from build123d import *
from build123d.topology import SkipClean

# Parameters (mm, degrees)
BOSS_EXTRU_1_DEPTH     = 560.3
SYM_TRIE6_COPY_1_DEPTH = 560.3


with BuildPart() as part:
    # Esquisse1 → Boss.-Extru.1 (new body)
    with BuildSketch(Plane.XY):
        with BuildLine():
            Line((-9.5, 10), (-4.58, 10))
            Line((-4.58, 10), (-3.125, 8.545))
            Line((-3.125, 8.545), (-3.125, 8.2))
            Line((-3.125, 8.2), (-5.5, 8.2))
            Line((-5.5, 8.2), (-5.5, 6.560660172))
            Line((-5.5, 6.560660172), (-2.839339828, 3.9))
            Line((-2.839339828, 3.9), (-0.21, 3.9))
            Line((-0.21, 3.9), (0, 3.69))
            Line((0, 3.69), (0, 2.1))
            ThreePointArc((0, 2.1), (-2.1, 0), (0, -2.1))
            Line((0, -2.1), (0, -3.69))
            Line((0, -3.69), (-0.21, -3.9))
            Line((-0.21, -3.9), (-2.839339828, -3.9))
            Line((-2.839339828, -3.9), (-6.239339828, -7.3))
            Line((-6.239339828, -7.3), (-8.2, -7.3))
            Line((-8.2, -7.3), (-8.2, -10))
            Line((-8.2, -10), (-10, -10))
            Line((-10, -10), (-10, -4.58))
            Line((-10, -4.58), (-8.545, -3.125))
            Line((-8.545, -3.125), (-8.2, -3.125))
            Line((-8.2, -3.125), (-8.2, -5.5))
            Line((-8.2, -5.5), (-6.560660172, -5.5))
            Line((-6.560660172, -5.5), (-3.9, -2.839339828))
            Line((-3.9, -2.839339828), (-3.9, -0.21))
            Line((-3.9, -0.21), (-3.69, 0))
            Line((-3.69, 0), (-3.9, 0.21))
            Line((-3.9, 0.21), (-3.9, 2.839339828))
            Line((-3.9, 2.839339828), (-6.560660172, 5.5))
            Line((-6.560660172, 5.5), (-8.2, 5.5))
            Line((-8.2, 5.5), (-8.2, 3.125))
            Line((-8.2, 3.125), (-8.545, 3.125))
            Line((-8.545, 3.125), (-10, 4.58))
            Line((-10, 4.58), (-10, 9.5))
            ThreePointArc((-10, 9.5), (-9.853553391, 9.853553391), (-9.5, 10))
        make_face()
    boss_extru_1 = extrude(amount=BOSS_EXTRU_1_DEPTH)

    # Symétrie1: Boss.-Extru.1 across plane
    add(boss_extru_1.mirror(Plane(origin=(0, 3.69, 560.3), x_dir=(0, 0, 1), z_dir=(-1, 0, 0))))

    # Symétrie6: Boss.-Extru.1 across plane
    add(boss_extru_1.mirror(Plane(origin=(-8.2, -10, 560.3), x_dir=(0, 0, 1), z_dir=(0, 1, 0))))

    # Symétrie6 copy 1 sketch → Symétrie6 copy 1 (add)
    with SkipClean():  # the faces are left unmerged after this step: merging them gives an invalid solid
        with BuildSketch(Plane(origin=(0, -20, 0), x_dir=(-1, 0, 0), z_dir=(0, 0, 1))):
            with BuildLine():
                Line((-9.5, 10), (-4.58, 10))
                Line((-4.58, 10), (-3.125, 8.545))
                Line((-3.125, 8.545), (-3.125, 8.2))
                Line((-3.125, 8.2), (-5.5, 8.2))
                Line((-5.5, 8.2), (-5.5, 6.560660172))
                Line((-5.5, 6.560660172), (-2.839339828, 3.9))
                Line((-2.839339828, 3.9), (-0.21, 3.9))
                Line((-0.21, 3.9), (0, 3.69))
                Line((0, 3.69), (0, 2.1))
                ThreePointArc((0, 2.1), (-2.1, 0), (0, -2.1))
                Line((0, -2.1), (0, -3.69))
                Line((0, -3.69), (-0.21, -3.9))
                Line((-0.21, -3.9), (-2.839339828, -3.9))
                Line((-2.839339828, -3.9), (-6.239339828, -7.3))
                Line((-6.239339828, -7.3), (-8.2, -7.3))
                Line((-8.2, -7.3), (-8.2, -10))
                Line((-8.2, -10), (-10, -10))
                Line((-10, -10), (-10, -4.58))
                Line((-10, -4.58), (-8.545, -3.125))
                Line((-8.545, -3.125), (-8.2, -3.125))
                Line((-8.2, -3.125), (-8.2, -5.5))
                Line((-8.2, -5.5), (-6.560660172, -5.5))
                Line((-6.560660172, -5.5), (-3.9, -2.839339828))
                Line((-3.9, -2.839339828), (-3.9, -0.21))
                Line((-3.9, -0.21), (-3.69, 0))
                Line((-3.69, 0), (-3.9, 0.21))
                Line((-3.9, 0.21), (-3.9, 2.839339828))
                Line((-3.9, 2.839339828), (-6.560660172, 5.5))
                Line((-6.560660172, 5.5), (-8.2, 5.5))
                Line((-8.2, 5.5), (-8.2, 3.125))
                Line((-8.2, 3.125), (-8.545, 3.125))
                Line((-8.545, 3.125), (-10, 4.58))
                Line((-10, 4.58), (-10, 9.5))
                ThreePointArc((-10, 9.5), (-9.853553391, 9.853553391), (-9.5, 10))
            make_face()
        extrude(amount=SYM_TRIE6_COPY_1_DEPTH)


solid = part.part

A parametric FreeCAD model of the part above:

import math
import FreeCAD as App
import Part
import Sketcher

V = App.Vector

doc = App.newDocument("Part")
body = doc.addObject("PartDesign::Body", "Body")

# Sketch on XY plane
sketch1 = body.newObject("Sketcher::SketchObject", "Sketch")
sketch1.AttachmentSupport = (doc.getObject("XY_Plane"), [""])
sketch1.MapMode = "FlatFace"
sketch1.addGeometry(Part.LineSegment(V(-4.58, 10, 0), V(-9.5, 10, 0)), False)
sketch1.addGeometry(Part.ArcOfCircle(Part.Circle(V(-9.5, 9.5, 0), V(0, 0, 1), 0.5), math.radians(90), math.radians(180)), False)
sketch1.addGeometry(Part.LineSegment(V(-10, 9.5, 0), V(-10, 4.58, 0)), False)
sketch1.addGeometry(Part.LineSegment(V(-10, 4.58, 0), V(-8.54, 3.12, 0)), False)
sketch1.addGeometry(Part.LineSegment(V(-8.54, 3.12, 0), V(-8.2, 3.12, 0)), False)
sketch1.addGeometry(Part.LineSegment(V(-8.2, 3.12, 0), V(-8.2, 5.5, 0)), False)
sketch1.addGeometry(Part.LineSegment(V(-8.2, 5.5, 0), V(-6.56, 5.5, 0)), False)
sketch1.addGeometry(Part.LineSegment(V(-6.56, 5.5, 0), V(-3.9, 2.84, 0)), False)
sketch1.addGeometry(Part.LineSegment(V(-3.9, 2.84, 0), V(-3.9, 0.21, 0)), False)
sketch1.addGeometry(Part.LineSegment(V(-3.9, 0.21, 0), V(-3.69, 0, 0)), False)
sketch1.addGeometry(Part.LineSegment(V(-3.69, 0, 0), V(-3.9, -0.21, 0)), False)
sketch1.addGeometry(Part.LineSegment(V(-3.9, -0.21, 0), V(-3.9, -2.84, 0)), False)
sketch1.addGeometry(Part.LineSegment(V(-3.9, -2.84, 0), V(-6.56, -5.5, 0)), False)
sketch1.addGeometry(Part.LineSegment(V(-6.56, -5.5, 0), V(-8.2, -5.5, 0)), False)
sketch1.addGeometry(Part.LineSegment(V(-8.2, -5.5, 0), V(-8.2, -3.12, 0)), False)
sketch1.addGeometry(Part.LineSegment(V(-8.2, -3.12, 0), V(-8.54, -3.12, 0)), False)
sketch1.addGeometry(Part.LineSegment(V(-8.54, -3.12, 0), V(-10, -4.58, 0)), False)
sketch1.addGeometry(Part.LineSegment(V(-10, -4.58, 0), V(-10, -10, 0)), False)
sketch1.addGeometry(Part.LineSegment(V(-10, -10, 0), V(-8.2, -10, 0)), False)
sketch1.addGeometry(Part.LineSegment(V(-8.2, -10, 0), V(-8.2, -7.3, 0)), False)
sketch1.addGeometry(Part.LineSegment(V(-8.2, -7.3, 0), V(-6.24, -7.3, 0)), False)
sketch1.addGeometry(Part.LineSegment(V(-6.24, -7.3, 0), V(-2.84, -3.9, 0)), False)
sketch1.addGeometry(Part.LineSegment(V(-2.84, -3.9, 0), V(-0.21, -3.9, 0)), False)
sketch1.addGeometry(Part.LineSegment(V(-0.21, -3.9, 0), V(0, -3.69, 0)), False)
sketch1.addGeometry(Part.LineSegment(V(0, -3.69, 0), V(0, -2.1, 0)), False)
sketch1.addGeometry(Part.ArcOfCircle(Part.Circle(V(0, 0, 0), V(0, 0, 1), 2.1), math.radians(90), math.radians(270)), False)
sketch1.addGeometry(Part.LineSegment(V(0, 2.1, 0), V(0, 3.69, 0)), False)
sketch1.addGeometry(Part.LineSegment(V(0, 3.69, 0), V(-0.21, 3.9, 0)), False)
sketch1.addGeometry(Part.LineSegment(V(-0.21, 3.9, 0), V(-2.84, 3.9, 0)), False)
sketch1.addGeometry(Part.LineSegment(V(-2.84, 3.9, 0), V(-5.5, 6.56, 0)), False)
sketch1.addGeometry(Part.LineSegment(V(-5.5, 6.56, 0), V(-5.5, 8.2, 0)), False)
sketch1.addGeometry(Part.LineSegment(V(-5.5, 8.2, 0), V(-3.12, 8.2, 0)), False)
sketch1.addGeometry(Part.LineSegment(V(-3.12, 8.2, 0), V(-3.12, 8.54, 0)), False)
sketch1.addGeometry(Part.LineSegment(V(-3.12, 8.54, 0), V(-4.58, 10, 0)), False)
sketch1.addConstraint(Sketcher.Constraint("Tangent", 0, 2, 1, 1))
sketch1.addConstraint(Sketcher.Constraint("Tangent", 1, 2, 2, 1))
sketch1.addConstraint(Sketcher.Constraint("Coincident", 2, 2, 3, 1))
sketch1.addConstraint(Sketcher.Constraint("Coincident", 3, 2, 4, 1))
sketch1.addConstraint(Sketcher.Constraint("Coincident", 4, 2, 5, 1))
sketch1.addConstraint(Sketcher.Constraint("Coincident", 5, 2, 6, 1))
sketch1.addConstraint(Sketcher.Constraint("Coincident", 6, 2, 7, 1))
sketch1.addConstraint(Sketcher.Constraint("Coincident", 7, 2, 8, 1))
sketch1.addConstraint(Sketcher.Constraint("Coincident", 8, 2, 9, 1))
sketch1.addConstraint(Sketcher.Constraint("Coincident", 9, 2, 10, 1))
sketch1.addConstraint(Sketcher.Constraint("Coincident", 10, 2, 11, 1))
sketch1.addConstraint(Sketcher.Constraint("Coincident", 11, 2, 12, 1))
sketch1.addConstraint(Sketcher.Constraint("Coincident", 12, 2, 13, 1))
sketch1.addConstraint(Sketcher.Constraint("Coincident", 13, 2, 14, 1))
sketch1.addConstraint(Sketcher.Constraint("Coincident", 14, 2, 15, 1))
sketch1.addConstraint(Sketcher.Constraint("Coincident", 15, 2, 16, 1))
sketch1.addConstraint(Sketcher.Constraint("Coincident", 16, 2, 17, 1))
sketch1.addConstraint(Sketcher.Constraint("Coincident", 17, 2, 18, 1))
sketch1.addConstraint(Sketcher.Constraint("Coincident", 18, 2, 19, 1))
sketch1.addConstraint(Sketcher.Constraint("Coincident", 19, 2, 20, 1))
sketch1.addConstraint(Sketcher.Constraint("Coincident", 20, 2, 21, 1))
sketch1.addConstraint(Sketcher.Constraint("Coincident", 21, 2, 22, 1))
sketch1.addConstraint(Sketcher.Constraint("Coincident", 22, 2, 23, 1))
sketch1.addConstraint(Sketcher.Constraint("Coincident", 23, 2, 24, 1))
sketch1.addConstraint(Sketcher.Constraint("Coincident", 24, 2, 25, 2))
sketch1.addConstraint(Sketcher.Constraint("Coincident", 25, 1, 26, 1))
sketch1.addConstraint(Sketcher.Constraint("Coincident", 26, 2, 27, 1))
sketch1.addConstraint(Sketcher.Constraint("Coincident", 27, 2, 28, 1))
sketch1.addConstraint(Sketcher.Constraint("Coincident", 28, 2, 29, 1))
sketch1.addConstraint(Sketcher.Constraint("Coincident", 29, 2, 30, 1))
sketch1.addConstraint(Sketcher.Constraint("Coincident", 30, 2, 31, 1))
sketch1.addConstraint(Sketcher.Constraint("Coincident", 31, 2, 32, 1))
sketch1.addConstraint(Sketcher.Constraint("Coincident", 32, 2, 33, 1))
sketch1.addConstraint(Sketcher.Constraint("Coincident", 33, 2, 0, 1))
sketch1.addConstraint(Sketcher.Constraint("Horizontal", 0))
sketch1.addConstraint(Sketcher.Constraint("Vertical", 2))
sketch1.addConstraint(Sketcher.Constraint("Horizontal", 4))
sketch1.addConstraint(Sketcher.Constraint("Vertical", 5))
sketch1.addConstraint(Sketcher.Constraint("Horizontal", 6))
sketch1.addConstraint(Sketcher.Constraint("Vertical", 8))
sketch1.addConstraint(Sketcher.Constraint("Vertical", 11))
sketch1.addConstraint(Sketcher.Constraint("Horizontal", 13))
sketch1.addConstraint(Sketcher.Constraint("Vertical", 14))
sketch1.addConstraint(Sketcher.Constraint("Horizontal", 15))
sketch1.addConstraint(Sketcher.Constraint("Vertical", 17))
sketch1.addConstraint(Sketcher.Constraint("Horizontal", 18))
sketch1.addConstraint(Sketcher.Constraint("Vertical", 19))
sketch1.addConstraint(Sketcher.Constraint("Horizontal", 20))
sketch1.addConstraint(Sketcher.Constraint("Horizontal", 22))
sketch1.addConstraint(Sketcher.Constraint("Vertical", 24))
sketch1.addConstraint(Sketcher.Constraint("Vertical", 26))
sketch1.addConstraint(Sketcher.Constraint("Horizontal", 28))
sketch1.addConstraint(Sketcher.Constraint("Vertical", 30))
sketch1.addConstraint(Sketcher.Constraint("Horizontal", 31))
sketch1.addConstraint(Sketcher.Constraint("Vertical", 32))
sketch1.addConstraint(Sketcher.Constraint("Coincident", 25, 3, -1, 1))
sketch1.addConstraint(Sketcher.Constraint("Symmetric", 23, 2, 26, 2, -1, 1))
sketch1.addConstraint(Sketcher.Constraint("Symmetric", 8, 2, 10, 2, -1))
sketch1.addConstraint(Sketcher.Constraint("Symmetric", 6, 2, 12, 2, -1))
sketch1.addConstraint(Sketcher.Constraint("Symmetric", 4, 2, 14, 2, -1))
sketch1.addConstraint(Sketcher.Constraint("Symmetric", 2, 2, 16, 2, -1))
sketch1.addConstraint(Sketcher.Constraint("Symmetric", 22, 2, 27, 2, -1))
sketch1.addConstraint(Sketcher.Constraint("PointOnObject", 9, 2, -1))
sketch1.addConstraint(Sketcher.Constraint("PointOnObject", 23, 2, -2))
sketch1.addConstraint(Sketcher.Constraint("Parallel", 3, 7))
sketch1.addConstraint(Sketcher.Constraint("Parallel", 7, 9))
sketch1.addConstraint(Sketcher.Constraint("Perpendicular", 9, 10))
sketch1.addConstraint(Sketcher.Constraint("Parallel", 10, 12))
sketch1.addConstraint(Sketcher.Constraint("Parallel", 12, 16))
sketch1.addConstraint(Sketcher.Constraint("Parallel", 16, 21))
sketch1.addConstraint(Sketcher.Constraint("Parallel", 21, 23))
sketch1.addConstraint(Sketcher.Constraint("Parallel", 27, 29))
sketch1.addConstraint(Sketcher.Constraint("Parallel", 29, 33))
sketch1.addConstraint(Sketcher.Constraint("Vertical", 14, 2, 18, 2))
sketch1.addConstraint(Sketcher.Constraint("Vertical", 21, 2, 28, 2))
sketch1.addConstraint(Sketcher.Constraint("Equal", 0, 2))
sketch1.addConstraint(Sketcher.Constraint("Equal", 31, 5))
sketch1.addConstraint(Sketcher.Constraint("Equal", 28, 8))
sketch1.addConstraint(Sketcher.Constraint("Equal", 13, 30))
sketch1.addConstraint(Sketcher.Constraint("Equal", 15, 32))
sketch1.addConstraint(Sketcher.Constraint("Equal", 10, 23))
sketch1.addConstraint(Sketcher.Constraint("Equal", 12, 29))
sketch1.addConstraint(Sketcher.Constraint("Equal", 16, 33))
sketch1.addConstraint(Sketcher.Constraint("Radius", 1, 0.5))
sketch1.addConstraint(Sketcher.Constraint("Radius", 25, 2.1))
sketch1.addConstraint(Sketcher.Constraint("DistanceX", 18, 1, 18, 2, 1.8))
sketch1.addConstraint(Sketcher.Constraint("DistanceY", 19, 1, 19, 2, 2.7))
sketch1.addConstraint(Sketcher.Constraint("DistanceY", -1, 1, 0, 2, 10.0))
sketch1.addConstraint(Sketcher.Constraint("DistanceY", 17, 2, -1, 1, 10.0))
sketch1.addConstraint(Sketcher.Constraint("DistanceY", 5, 2, 1, 3, 4.0))
sketch1.addConstraint(Sketcher.Constraint("DistanceX", 0, 2, 0, 1, 4.92))
sketch1.addConstraint(Sketcher.Constraint("DistanceY", 24, 1, 24, 2, 1.59))
sketch1.addConstraint(Sketcher.Constraint("DistanceX", 7, 2, -1, 1, 3.9))
sketch1.addConstraint(Sketcher.Constraint("DistanceX", 4, 1, 4, 2, 0.345))
sketch1.addConstraint(Sketcher.Constraint("DistanceX", 6, 1, 6, 2, 1.63934))
pad1 = body.newObject("PartDesign::Pad", "Pad")
pad1.Profile = sketch1
pad1.Length = 560.3
doc.recompute()

mirrored = body.newObject("PartDesign::Mirrored", "Mirrored")
mirrored.Originals = [pad1]
mirrored.MirrorPlane = (doc.getObject("YZ_Plane"), [""])
body.Tip = mirrored
doc.recompute()

datumplane = body.newObject("PartDesign::Plane", "DatumPlane")
datumplane.AttachmentSupport = (doc.getObject("XZ_Plane"), [""])
datumplane.MapMode = "FlatFace"
datumplane.AttachmentOffset = App.Placement(V(0, 0, 10), App.Rotation())
mirrored2 = body.newObject("PartDesign::Mirrored", "Mirrored001")
mirrored2.Originals = [pad1]
mirrored2.MirrorPlane = (datumplane, [""])
body.Tip = mirrored2

# Sketch on XY plane
sketch2 = body.newObject("Sketcher::SketchObject", "Sketch001")
sketch2.AttachmentSupport = (doc.getObject("XY_Plane"), [""])
sketch2.MapMode = "FlatFace"
sketch2.addGeometry(Part.LineSegment(V(4.58, -30, 0), V(9.5, -30, 0)), False)
sketch2.addGeometry(Part.ArcOfCircle(Part.Circle(V(9.5, -29.5, 0), V(0, 0, 1), 0.5), math.radians(-90), math.radians(0)), False)
sketch2.addGeometry(Part.LineSegment(V(10, -29.5, 0), V(10, -24.58, 0)), False)
sketch2.addGeometry(Part.LineSegment(V(10, -24.58, 0), V(8.54, -23.12, 0)), False)
sketch2.addGeometry(Part.LineSegment(V(8.54, -23.12, 0), V(8.2, -23.12, 0)), False)
sketch2.addGeometry(Part.LineSegment(V(8.2, -23.12, 0), V(8.2, -25.5, 0)), False)
sketch2.addGeometry(Part.LineSegment(V(8.2, -25.5, 0), V(6.56, -25.5, 0)), False)
sketch2.addGeometry(Part.LineSegment(V(6.56, -25.5, 0), V(3.9, -22.84, 0)), False)
sketch2.addGeometry(Part.LineSegment(V(3.9, -22.84, 0), V(3.9, -20.21, 0)), False)
sketch2.addGeometry(Part.LineSegment(V(3.9, -20.21, 0), V(3.69, -20, 0)), False)
sketch2.addGeometry(Part.LineSegment(V(3.69, -20, 0), V(3.9, -19.79, 0)), False)
sketch2.addGeometry(Part.LineSegment(V(3.9, -19.79, 0), V(3.9, -17.16, 0)), False)
sketch2.addGeometry(Part.LineSegment(V(3.9, -17.16, 0), V(6.56, -14.5, 0)), False)
sketch2.addGeometry(Part.LineSegment(V(6.56, -14.5, 0), V(8.2, -14.5, 0)), False)
sketch2.addGeometry(Part.LineSegment(V(8.2, -14.5, 0), V(8.2, -16.88, 0)), False)
sketch2.addGeometry(Part.LineSegment(V(8.2, -16.88, 0), V(8.54, -16.88, 0)), False)
sketch2.addGeometry(Part.LineSegment(V(8.54, -16.88, 0), V(10, -15.42, 0)), False)
sketch2.addGeometry(Part.LineSegment(V(10, -15.42, 0), V(10, -10, 0)), False)
sketch2.addGeometry(Part.LineSegment(V(10, -10, 0), V(8.2, -10, 0)), False)
sketch2.addGeometry(Part.LineSegment(V(8.2, -10, 0), V(8.2, -12.7, 0)), False)
sketch2.addGeometry(Part.LineSegment(V(8.2, -12.7, 0), V(6.24, -12.7, 0)), False)
sketch2.addGeometry(Part.LineSegment(V(6.24, -12.7, 0), V(2.84, -16.1, 0)), False)
sketch2.addGeometry(Part.LineSegment(V(2.84, -16.1, 0), V(0.21, -16.1, 0)), False)
sketch2.addGeometry(Part.LineSegment(V(0.21, -16.1, 0), V(0, -16.31, 0)), False)
sketch2.addGeometry(Part.LineSegment(V(0, -16.31, 0), V(0, -17.9, 0)), False)
sketch2.addGeometry(Part.ArcOfCircle(Part.Circle(V(0, -20, 0), V(0, 0, 1), 2.1), math.radians(-90), math.radians(90)), False)
sketch2.addGeometry(Part.LineSegment(V(0, -22.1, 0), V(0, -23.69, 0)), False)
sketch2.addGeometry(Part.LineSegment(V(0, -23.69, 0), V(0.21, -23.9, 0)), False)
sketch2.addGeometry(Part.LineSegment(V(0.21, -23.9, 0), V(2.84, -23.9, 0)), False)
sketch2.addGeometry(Part.LineSegment(V(2.84, -23.9, 0), V(5.5, -26.56, 0)), False)
sketch2.addGeometry(Part.LineSegment(V(5.5, -26.56, 0), V(5.5, -28.2, 0)), False)
sketch2.addGeometry(Part.LineSegment(V(5.5, -28.2, 0), V(3.12, -28.2, 0)), False)
sketch2.addGeometry(Part.LineSegment(V(3.12, -28.2, 0), V(3.12, -28.55, 0)), False)
sketch2.addGeometry(Part.LineSegment(V(3.12, -28.55, 0), V(4.58, -30, 0)), False)
sketch2.addConstraint(Sketcher.Constraint("Tangent", 0, 2, 1, 1))
sketch2.addConstraint(Sketcher.Constraint("Tangent", 1, 2, 2, 1))
sketch2.addConstraint(Sketcher.Constraint("Coincident", 2, 2, 3, 1))
sketch2.addConstraint(Sketcher.Constraint("Coincident", 3, 2, 4, 1))
sketch2.addConstraint(Sketcher.Constraint("Coincident", 4, 2, 5, 1))
sketch2.addConstraint(Sketcher.Constraint("Coincident", 5, 2, 6, 1))
sketch2.addConstraint(Sketcher.Constraint("Coincident", 6, 2, 7, 1))
sketch2.addConstraint(Sketcher.Constraint("Coincident", 7, 2, 8, 1))
sketch2.addConstraint(Sketcher.Constraint("Coincident", 8, 2, 9, 1))
sketch2.addConstraint(Sketcher.Constraint("Coincident", 9, 2, 10, 1))
sketch2.addConstraint(Sketcher.Constraint("Coincident", 10, 2, 11, 1))
sketch2.addConstraint(Sketcher.Constraint("Coincident", 11, 2, 12, 1))
sketch2.addConstraint(Sketcher.Constraint("Coincident", 12, 2, 13, 1))
sketch2.addConstraint(Sketcher.Constraint("Coincident", 13, 2, 14, 1))
sketch2.addConstraint(Sketcher.Constraint("Coincident", 14, 2, 15, 1))
sketch2.addConstraint(Sketcher.Constraint("Coincident", 15, 2, 16, 1))
sketch2.addConstraint(Sketcher.Constraint("Coincident", 16, 2, 17, 1))
sketch2.addConstraint(Sketcher.Constraint("Coincident", 17, 2, 18, 1))
sketch2.addConstraint(Sketcher.Constraint("Coincident", 18, 2, 19, 1))
sketch2.addConstraint(Sketcher.Constraint("Coincident", 19, 2, 20, 1))
sketch2.addConstraint(Sketcher.Constraint("Coincident", 20, 2, 21, 1))
sketch2.addConstraint(Sketcher.Constraint("Coincident", 21, 2, 22, 1))
sketch2.addConstraint(Sketcher.Constraint("Coincident", 22, 2, 23, 1))
sketch2.addConstraint(Sketcher.Constraint("Coincident", 23, 2, 24, 1))
sketch2.addConstraint(Sketcher.Constraint("Coincident", 24, 2, 25, 2))
sketch2.addConstraint(Sketcher.Constraint("Coincident", 25, 1, 26, 1))
sketch2.addConstraint(Sketcher.Constraint("Coincident", 26, 2, 27, 1))
sketch2.addConstraint(Sketcher.Constraint("Coincident", 27, 2, 28, 1))
sketch2.addConstraint(Sketcher.Constraint("Coincident", 28, 2, 29, 1))
sketch2.addConstraint(Sketcher.Constraint("Coincident", 29, 2, 30, 1))
sketch2.addConstraint(Sketcher.Constraint("Coincident", 30, 2, 31, 1))
sketch2.addConstraint(Sketcher.Constraint("Coincident", 31, 2, 32, 1))
sketch2.addConstraint(Sketcher.Constraint("Coincident", 32, 2, 33, 1))
sketch2.addConstraint(Sketcher.Constraint("Coincident", 33, 2, 0, 1))
sketch2.addConstraint(Sketcher.Constraint("Horizontal", 0))
sketch2.addConstraint(Sketcher.Constraint("Vertical", 2))
sketch2.addConstraint(Sketcher.Constraint("Horizontal", 4))
sketch2.addConstraint(Sketcher.Constraint("Vertical", 5))
sketch2.addConstraint(Sketcher.Constraint("Horizontal", 6))
sketch2.addConstraint(Sketcher.Constraint("Vertical", 8))
sketch2.addConstraint(Sketcher.Constraint("Vertical", 11))
sketch2.addConstraint(Sketcher.Constraint("Horizontal", 13))
sketch2.addConstraint(Sketcher.Constraint("Vertical", 14))
sketch2.addConstraint(Sketcher.Constraint("Horizontal", 15))
sketch2.addConstraint(Sketcher.Constraint("Vertical", 17))
sketch2.addConstraint(Sketcher.Constraint("Horizontal", 18))
sketch2.addConstraint(Sketcher.Constraint("Vertical", 19))
sketch2.addConstraint(Sketcher.Constraint("Horizontal", 20))
sketch2.addConstraint(Sketcher.Constraint("Horizontal", 22))
sketch2.addConstraint(Sketcher.Constraint("Vertical", 24))
sketch2.addConstraint(Sketcher.Constraint("Vertical", 26))
sketch2.addConstraint(Sketcher.Constraint("Horizontal", 28))
sketch2.addConstraint(Sketcher.Constraint("Vertical", 30))
sketch2.addConstraint(Sketcher.Constraint("Horizontal", 31))
sketch2.addConstraint(Sketcher.Constraint("Vertical", 32))
sketch2.addConstraint(Sketcher.Constraint("PointOnObject", 25, 3, -2))
sketch2.addConstraint(Sketcher.Constraint("PointOnObject", 23, 2, -2))
sketch2.addConstraint(Sketcher.Constraint("PointOnObject", 25, 1, -2))
sketch2.addConstraint(Sketcher.Constraint("Parallel", 3, 7))
sketch2.addConstraint(Sketcher.Constraint("Parallel", 7, 9))
sketch2.addConstraint(Sketcher.Constraint("Perpendicular", 9, 10))
sketch2.addConstraint(Sketcher.Constraint("Parallel", 10, 12))
sketch2.addConstraint(Sketcher.Constraint("Parallel", 12, 16))
sketch2.addConstraint(Sketcher.Constraint("Parallel", 16, 21))
sketch2.addConstraint(Sketcher.Constraint("Parallel", 21, 23))
sketch2.addConstraint(Sketcher.Constraint("Perpendicular", 23, 27))
sketch2.addConstraint(Sketcher.Constraint("Parallel", 27, 29))
sketch2.addConstraint(Sketcher.Constraint("Parallel", 29, 33))
sketch2.addConstraint(Sketcher.Constraint("Horizontal", 25, 3, 9, 2))
sketch2.addConstraint(Sketcher.Constraint("Vertical", 8, 2, 10, 2))
sketch2.addConstraint(Sketcher.Constraint("Vertical", 6, 2, 12, 2))
sketch2.addConstraint(Sketcher.Constraint("Vertical", 5, 2, 13, 2))
sketch2.addConstraint(Sketcher.Constraint("Vertical", 3, 2, 15, 2))
sketch2.addConstraint(Sketcher.Constraint("Vertical", 2, 2, 16, 2))
sketch2.addConstraint(Sketcher.Constraint("Vertical", 14, 2, 18, 2))
sketch2.addConstraint(Sketcher.Constraint("Vertical", 22, 2, 27, 2))
sketch2.addConstraint(Sketcher.Constraint("Vertical", 21, 2, 28, 2))
sketch2.addConstraint(Sketcher.Constraint("Equal", 0, 2))
sketch2.addConstraint(Sketcher.Constraint("Equal", 31, 5))
sketch2.addConstraint(Sketcher.Constraint("Equal", 28, 8))
sketch2.addConstraint(Sketcher.Constraint("Equal", 8, 11))
sketch2.addConstraint(Sketcher.Constraint("Equal", 5, 14))
sketch2.addConstraint(Sketcher.Constraint("Equal", 24, 26))
sketch2.addConstraint(Sketcher.Constraint("Equal", 13, 30))
sketch2.addConstraint(Sketcher.Constraint("Equal", 15, 32))
sketch2.addConstraint(Sketcher.Constraint("Equal", 9, 10))
sketch2.addConstraint(Sketcher.Constraint("Equal", 10, 23))
sketch2.addConstraint(Sketcher.Constraint("Equal", 12, 29))
sketch2.addConstraint(Sketcher.Constraint("Equal", 16, 33))
sketch2.addConstraint(Sketcher.Constraint("Radius", 1, 0.5))
sketch2.addConstraint(Sketcher.Constraint("Radius", 25, 2.1))
sketch2.addConstraint(Sketcher.Constraint("DistanceX", 18, 2, 18, 1, 1.8))
sketch2.addConstraint(Sketcher.Constraint("DistanceY", 19, 2, 19, 1, 2.7))
sketch2.addConstraint(Sketcher.Constraint("DistanceY", 25, 3, -1, 1, 20.0))
sketch2.addConstraint(Sketcher.Constraint("DistanceY", 0, 2, -1, 1, 30.0))
sketch2.addConstraint(Sketcher.Constraint("DistanceY", 17, 2, -1, 1, 10.0))
sketch2.addConstraint(Sketcher.Constraint("DistanceY", 1, 3, 5, 2, 4.0))
sketch2.addConstraint(Sketcher.Constraint("DistanceX", 0, 1, 0, 2, 4.92))
sketch2.addConstraint(Sketcher.Constraint("DistanceY", 24, 2, 24, 1, 1.59))
sketch2.addConstraint(Sketcher.Constraint("DistanceX", -1, 1, 7, 2, 3.9))
sketch2.addConstraint(Sketcher.Constraint("DistanceX", 4, 2, 4, 1, 0.345))
sketch2.addConstraint(Sketcher.Constraint("DistanceX", 6, 2, 6, 1, 1.63934))
pad2 = body.newObject("PartDesign::Pad", "Pad001")
pad2.Profile = sketch2
pad2.Length = 560.3

doc.recompute()
